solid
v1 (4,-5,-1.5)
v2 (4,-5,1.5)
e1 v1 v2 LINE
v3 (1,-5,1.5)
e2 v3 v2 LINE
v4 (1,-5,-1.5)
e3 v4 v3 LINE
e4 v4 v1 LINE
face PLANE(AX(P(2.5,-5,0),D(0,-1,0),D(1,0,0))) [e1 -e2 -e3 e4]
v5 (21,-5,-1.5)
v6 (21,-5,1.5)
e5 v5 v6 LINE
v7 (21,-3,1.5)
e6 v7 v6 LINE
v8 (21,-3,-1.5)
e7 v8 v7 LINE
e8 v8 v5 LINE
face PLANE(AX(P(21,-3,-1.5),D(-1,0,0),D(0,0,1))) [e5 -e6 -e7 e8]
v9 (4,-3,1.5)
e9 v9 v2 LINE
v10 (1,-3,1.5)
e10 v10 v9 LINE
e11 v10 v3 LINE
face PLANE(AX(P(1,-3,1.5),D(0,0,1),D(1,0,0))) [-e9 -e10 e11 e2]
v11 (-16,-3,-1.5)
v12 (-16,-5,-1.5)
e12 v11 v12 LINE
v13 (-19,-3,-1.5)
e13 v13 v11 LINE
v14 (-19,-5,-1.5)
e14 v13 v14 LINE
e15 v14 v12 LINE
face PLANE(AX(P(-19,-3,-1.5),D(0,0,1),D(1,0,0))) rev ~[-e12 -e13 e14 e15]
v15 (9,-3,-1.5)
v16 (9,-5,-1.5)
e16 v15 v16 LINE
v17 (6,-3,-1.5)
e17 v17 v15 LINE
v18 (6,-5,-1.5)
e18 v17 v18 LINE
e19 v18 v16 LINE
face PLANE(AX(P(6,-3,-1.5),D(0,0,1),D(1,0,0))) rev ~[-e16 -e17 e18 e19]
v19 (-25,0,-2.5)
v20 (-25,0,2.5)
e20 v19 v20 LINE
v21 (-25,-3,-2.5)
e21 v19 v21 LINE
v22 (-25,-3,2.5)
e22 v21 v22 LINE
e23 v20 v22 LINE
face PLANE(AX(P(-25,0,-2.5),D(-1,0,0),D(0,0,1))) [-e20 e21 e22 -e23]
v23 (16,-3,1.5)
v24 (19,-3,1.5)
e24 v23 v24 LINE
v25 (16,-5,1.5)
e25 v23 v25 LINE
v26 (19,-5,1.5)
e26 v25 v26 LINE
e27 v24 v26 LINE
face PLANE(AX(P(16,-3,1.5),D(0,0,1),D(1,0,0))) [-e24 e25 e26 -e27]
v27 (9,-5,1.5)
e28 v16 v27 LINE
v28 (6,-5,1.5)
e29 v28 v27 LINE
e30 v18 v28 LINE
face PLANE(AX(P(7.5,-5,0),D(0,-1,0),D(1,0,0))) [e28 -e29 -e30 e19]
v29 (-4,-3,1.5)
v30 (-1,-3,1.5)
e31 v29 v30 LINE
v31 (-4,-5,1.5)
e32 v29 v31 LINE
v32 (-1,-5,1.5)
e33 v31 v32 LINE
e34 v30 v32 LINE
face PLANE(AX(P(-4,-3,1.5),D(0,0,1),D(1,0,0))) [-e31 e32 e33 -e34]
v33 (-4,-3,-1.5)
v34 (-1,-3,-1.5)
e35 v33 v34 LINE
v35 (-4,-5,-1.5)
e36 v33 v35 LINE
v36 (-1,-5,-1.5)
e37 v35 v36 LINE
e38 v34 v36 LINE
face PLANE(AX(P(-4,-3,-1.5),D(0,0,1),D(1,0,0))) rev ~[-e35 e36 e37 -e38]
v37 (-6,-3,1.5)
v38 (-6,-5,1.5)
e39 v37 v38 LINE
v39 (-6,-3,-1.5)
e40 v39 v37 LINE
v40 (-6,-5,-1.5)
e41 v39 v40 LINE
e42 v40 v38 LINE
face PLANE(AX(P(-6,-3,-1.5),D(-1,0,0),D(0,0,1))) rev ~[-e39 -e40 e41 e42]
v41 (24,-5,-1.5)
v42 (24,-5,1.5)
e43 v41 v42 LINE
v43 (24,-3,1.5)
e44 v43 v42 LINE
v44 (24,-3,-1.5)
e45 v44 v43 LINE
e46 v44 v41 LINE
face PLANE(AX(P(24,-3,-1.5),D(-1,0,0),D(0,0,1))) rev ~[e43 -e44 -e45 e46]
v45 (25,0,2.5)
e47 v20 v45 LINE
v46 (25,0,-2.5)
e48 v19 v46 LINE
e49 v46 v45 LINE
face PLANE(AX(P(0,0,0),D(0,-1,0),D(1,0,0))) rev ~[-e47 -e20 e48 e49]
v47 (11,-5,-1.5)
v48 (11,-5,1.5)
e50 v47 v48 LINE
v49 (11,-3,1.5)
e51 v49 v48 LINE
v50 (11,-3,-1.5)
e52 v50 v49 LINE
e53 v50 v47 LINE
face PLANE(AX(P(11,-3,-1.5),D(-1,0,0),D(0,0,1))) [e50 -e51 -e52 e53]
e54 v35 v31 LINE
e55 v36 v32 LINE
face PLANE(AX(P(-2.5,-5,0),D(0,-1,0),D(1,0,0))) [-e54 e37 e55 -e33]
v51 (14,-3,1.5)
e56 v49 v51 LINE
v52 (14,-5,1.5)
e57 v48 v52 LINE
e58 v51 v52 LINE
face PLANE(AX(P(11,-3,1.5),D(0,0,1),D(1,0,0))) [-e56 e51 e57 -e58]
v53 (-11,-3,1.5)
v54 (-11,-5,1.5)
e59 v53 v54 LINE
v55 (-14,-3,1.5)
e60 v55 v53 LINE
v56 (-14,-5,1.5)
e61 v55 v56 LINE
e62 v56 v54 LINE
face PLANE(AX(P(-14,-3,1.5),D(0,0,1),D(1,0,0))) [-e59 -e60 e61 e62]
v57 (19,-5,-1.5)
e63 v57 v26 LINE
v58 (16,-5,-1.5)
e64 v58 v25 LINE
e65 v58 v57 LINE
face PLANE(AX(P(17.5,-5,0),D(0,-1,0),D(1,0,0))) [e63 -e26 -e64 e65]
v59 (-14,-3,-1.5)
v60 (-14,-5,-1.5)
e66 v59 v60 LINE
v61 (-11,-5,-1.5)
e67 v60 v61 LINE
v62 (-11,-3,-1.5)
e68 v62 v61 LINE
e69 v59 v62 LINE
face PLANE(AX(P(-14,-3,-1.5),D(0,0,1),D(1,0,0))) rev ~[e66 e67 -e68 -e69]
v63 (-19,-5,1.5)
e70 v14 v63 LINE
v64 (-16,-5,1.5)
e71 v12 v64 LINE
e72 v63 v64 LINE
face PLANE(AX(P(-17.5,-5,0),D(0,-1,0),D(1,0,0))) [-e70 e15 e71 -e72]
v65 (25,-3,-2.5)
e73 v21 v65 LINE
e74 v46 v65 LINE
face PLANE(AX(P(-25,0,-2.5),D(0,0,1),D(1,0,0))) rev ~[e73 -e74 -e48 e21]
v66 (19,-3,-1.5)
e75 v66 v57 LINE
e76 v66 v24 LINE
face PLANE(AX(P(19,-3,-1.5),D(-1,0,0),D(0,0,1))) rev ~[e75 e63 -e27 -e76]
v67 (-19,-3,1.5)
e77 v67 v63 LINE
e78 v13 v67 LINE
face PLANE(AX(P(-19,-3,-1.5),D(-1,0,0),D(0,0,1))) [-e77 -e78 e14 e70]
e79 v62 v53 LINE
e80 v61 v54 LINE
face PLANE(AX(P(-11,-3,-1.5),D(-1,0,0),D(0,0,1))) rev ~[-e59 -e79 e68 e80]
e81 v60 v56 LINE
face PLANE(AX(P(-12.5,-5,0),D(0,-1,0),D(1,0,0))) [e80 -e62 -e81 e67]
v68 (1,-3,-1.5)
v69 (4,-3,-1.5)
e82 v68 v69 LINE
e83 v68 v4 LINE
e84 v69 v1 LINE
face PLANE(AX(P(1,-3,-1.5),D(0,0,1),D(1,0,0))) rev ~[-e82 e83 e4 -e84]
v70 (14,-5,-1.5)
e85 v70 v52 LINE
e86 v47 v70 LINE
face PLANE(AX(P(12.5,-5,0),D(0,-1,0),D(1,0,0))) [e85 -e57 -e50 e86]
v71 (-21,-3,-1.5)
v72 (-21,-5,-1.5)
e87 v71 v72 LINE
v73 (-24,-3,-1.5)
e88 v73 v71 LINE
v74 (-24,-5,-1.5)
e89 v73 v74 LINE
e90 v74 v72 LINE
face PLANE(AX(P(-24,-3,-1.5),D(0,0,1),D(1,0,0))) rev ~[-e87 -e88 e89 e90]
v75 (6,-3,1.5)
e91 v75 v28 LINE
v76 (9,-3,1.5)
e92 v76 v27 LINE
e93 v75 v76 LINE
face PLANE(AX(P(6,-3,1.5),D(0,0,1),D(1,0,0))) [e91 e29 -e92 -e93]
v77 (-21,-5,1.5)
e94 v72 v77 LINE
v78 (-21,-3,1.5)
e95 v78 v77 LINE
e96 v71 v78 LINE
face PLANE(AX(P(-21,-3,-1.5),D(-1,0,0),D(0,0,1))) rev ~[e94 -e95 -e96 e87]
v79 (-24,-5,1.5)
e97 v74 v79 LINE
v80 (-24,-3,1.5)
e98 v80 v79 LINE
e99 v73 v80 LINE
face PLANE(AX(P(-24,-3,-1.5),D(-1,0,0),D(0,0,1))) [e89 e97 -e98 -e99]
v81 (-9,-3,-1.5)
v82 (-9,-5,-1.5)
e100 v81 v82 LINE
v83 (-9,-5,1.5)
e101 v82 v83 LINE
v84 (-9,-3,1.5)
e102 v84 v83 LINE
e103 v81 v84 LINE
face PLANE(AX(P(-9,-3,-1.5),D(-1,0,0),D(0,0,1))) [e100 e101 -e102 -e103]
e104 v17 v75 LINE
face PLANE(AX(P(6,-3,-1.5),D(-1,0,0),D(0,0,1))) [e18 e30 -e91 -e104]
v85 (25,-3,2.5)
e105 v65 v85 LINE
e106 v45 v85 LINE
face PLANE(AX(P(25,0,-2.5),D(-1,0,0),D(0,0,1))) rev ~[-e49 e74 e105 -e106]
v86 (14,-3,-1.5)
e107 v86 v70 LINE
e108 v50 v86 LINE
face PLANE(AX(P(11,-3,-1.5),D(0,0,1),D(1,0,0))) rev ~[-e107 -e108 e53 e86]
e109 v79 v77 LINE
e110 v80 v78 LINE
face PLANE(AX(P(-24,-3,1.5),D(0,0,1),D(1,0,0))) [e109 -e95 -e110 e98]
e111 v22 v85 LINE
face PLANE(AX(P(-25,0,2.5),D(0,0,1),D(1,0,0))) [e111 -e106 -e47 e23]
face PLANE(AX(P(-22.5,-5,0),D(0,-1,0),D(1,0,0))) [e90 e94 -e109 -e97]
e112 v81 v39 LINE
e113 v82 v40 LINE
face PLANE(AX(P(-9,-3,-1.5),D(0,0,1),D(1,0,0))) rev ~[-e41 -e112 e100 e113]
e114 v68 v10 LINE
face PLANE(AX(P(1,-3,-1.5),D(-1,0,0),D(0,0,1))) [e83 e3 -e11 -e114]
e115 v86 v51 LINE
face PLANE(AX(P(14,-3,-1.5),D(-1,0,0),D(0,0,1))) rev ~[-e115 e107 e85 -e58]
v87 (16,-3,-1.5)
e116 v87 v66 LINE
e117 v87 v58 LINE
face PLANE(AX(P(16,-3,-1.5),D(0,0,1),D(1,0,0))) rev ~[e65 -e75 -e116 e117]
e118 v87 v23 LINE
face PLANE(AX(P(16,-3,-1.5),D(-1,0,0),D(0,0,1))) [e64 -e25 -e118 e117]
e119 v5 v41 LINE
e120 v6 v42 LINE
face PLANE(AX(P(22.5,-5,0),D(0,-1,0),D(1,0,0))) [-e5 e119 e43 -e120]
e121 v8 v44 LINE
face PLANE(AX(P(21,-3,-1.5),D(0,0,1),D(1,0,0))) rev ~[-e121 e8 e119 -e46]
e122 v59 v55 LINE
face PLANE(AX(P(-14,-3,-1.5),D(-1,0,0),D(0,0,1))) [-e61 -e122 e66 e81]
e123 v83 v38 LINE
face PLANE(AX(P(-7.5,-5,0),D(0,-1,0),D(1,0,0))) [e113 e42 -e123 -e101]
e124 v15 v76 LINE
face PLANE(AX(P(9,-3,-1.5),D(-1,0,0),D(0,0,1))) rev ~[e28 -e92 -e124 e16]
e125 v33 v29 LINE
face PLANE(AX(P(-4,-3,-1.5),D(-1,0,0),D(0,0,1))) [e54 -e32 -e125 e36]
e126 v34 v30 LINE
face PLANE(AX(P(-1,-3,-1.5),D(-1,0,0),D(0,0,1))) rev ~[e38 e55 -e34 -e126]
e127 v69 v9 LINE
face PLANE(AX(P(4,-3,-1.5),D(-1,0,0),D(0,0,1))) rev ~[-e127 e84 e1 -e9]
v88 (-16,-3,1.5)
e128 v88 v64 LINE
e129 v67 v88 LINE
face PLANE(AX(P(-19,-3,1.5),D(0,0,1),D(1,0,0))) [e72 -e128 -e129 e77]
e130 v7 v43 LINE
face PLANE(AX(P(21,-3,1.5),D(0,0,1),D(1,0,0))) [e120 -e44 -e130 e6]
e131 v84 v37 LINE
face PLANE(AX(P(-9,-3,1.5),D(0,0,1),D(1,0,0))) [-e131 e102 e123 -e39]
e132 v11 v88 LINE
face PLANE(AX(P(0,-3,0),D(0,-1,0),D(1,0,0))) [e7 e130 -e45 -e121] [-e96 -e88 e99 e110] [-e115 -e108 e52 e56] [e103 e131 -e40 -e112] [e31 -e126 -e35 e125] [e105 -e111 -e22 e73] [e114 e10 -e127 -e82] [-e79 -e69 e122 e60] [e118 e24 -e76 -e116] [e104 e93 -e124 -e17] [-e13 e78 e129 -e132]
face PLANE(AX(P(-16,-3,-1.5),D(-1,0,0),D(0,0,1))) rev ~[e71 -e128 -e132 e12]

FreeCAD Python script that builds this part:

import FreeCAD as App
import Part
import Sketcher

V = App.Vector

doc = App.newDocument("Part")
body = doc.addObject("PartDesign::Body", "Body")

sketch1 = doc.addObject("Sketcher::SketchObject", "Sketch")
body.addObject(sketch1)
sketch1.AttachmentSupport = (doc.XZ_Plane, [""])
sketch1.MapMode = "FlatFace"
sketch1.addGeometry(Part.LineSegment(V(-25, 2.5, 0), V(-25, -2.5, 0)), False)
sketch1.addGeometry(Part.LineSegment(V(-25, -2.5, 0), V(25, -2.5, 0)), False)
sketch1.addGeometry(Part.LineSegment(V(25, -2.5, 0), V(25, 2.5, 0)), False)
sketch1.addGeometry(Part.LineSegment(V(25, 2.5, 0), V(-25, 2.5, 0)), False)
sketch1.addConstraint(Sketcher.Constraint("Coincident", 0, 2, 1, 1))
sketch1.addConstraint(Sketcher.Constraint("Coincident", 1, 2, 2, 1))
sketch1.addConstraint(Sketcher.Constraint("Coincident", 2, 2, 3, 1))
sketch1.addConstraint(Sketcher.Constraint("Coincident", 3, 2, 0, 1))
sketch1.addConstraint(Sketcher.Constraint("Vertical", 0))
sketch1.addConstraint(Sketcher.Constraint("Horizontal", 1))
sketch1.addConstraint(Sketcher.Constraint("Vertical", 2))
sketch1.addConstraint(Sketcher.Constraint("Horizontal", 3))
sketch1.addConstraint(Sketcher.Constraint("Symmetric", 0, 2, 2, 2, -1, 1))
sketch1.addConstraint(Sketcher.Constraint("DistanceX", 1, 1, 1, 2, 50.0))
sketch1.addConstraint(Sketcher.Constraint("DistanceY", 0, 2, 0, 1, 5.0))
pad1 = doc.addObject("PartDesign::Pad", "Pad")
body.addObject(pad1)
pad1.Profile = sketch1
pad1.Length = 3

sketch2 = doc.addObject("Sketcher::SketchObject", "Sketch001")
body.addObject(sketch2)
sketch2.AttachmentSupport = (doc.XZ_Plane, [""])
sketch2.MapMode = "FlatFace"
sketch2.AttachmentOffset = App.Placement(V(0, 0, 3), App.Rotation())
sketch2.addGeometry(Part.LineSegment(V(-24, 1.5, 0), V(-24, -1.5, 0)), False)
sketch2.addGeometry(Part.LineSegment(V(-24, -1.5, 0), V(-21, -1.5, 0)), False)
sketch2.addGeometry(Part.LineSegment(V(-21, -1.5, 0), V(-21, 1.5, 0)), False)
sketch2.addGeometry(Part.LineSegment(V(-21, 1.5, 0), V(-24, 1.5, 0)), False)
sketch2.addGeometry(Part.LineSegment(V(-19, 1.5, 0), V(-19, -1.5, 0)), False)
sketch2.addGeometry(Part.LineSegment(V(-19, -1.5, 0), V(-16, -1.5, 0)), False)
sketch2.addGeometry(Part.LineSegment(V(-16, -1.5, 0), V(-16, 1.5, 0)), False)
sketch2.addGeometry(Part.LineSegment(V(-16, 1.5, 0), V(-19, 1.5, 0)), False)
sketch2.addGeometry(Part.LineSegment(V(-14, 1.5, 0), V(-14, -1.5, 0)), False)
sketch2.addGeometry(Part.LineSegment(V(-14, -1.5, 0), V(-11, -1.5, 0)), False)
sketch2.addGeometry(Part.LineSegment(V(-11, -1.5, 0), V(-11, 1.5, 0)), False)
sketch2.addGeometry(Part.LineSegment(V(-11, 1.5, 0), V(-14, 1.5, 0)), False)
sketch2.addGeometry(Part.LineSegment(V(-9, 1.5, 0), V(-9, -1.5, 0)), False)
sketch2.addGeometry(Part.LineSegment(V(-9, -1.5, 0), V(-6, -1.5, 0)), False)
sketch2.addGeometry(Part.LineSegment(V(-6, -1.5, 0), V(-6, 1.5, 0)), False)
sketch2.addGeometry(Part.LineSegment(V(-6, 1.5, 0), V(-9, 1.5, 0)), False)
sketch2.addGeometry(Part.LineSegment(V(-4, 1.5, 0), V(-4, -1.5, 0)), False)
sketch2.addGeometry(Part.LineSegment(V(-4, -1.5, 0), V(-1, -1.5, 0)), False)
sketch2.addGeometry(Part.LineSegment(V(-1, -1.5, 0), V(-1, 1.5, 0)), False)
sketch2.addGeometry(Part.LineSegment(V(-1, 1.5, 0), V(-4, 1.5, 0)), False)
sketch2.addGeometry(Part.LineSegment(V(1, 1.5, 0), V(1, -1.5, 0)), False)
sketch2.addGeometry(Part.LineSegment(V(1, -1.5, 0), V(4, -1.5, 0)), False)
sketch2.addGeometry(Part.LineSegment(V(4, -1.5, 0), V(4, 1.5, 0)), False)
sketch2.addGeometry(Part.LineSegment(V(4, 1.5, 0), V(1, 1.5, 0)), False)
sketch2.addGeometry(Part.LineSegment(V(6, 1.5, 0), V(6, -1.5, 0)), False)
sketch2.addGeometry(Part.LineSegment(V(6, -1.5, 0), V(9, -1.5, 0)), False)
sketch2.addGeometry(Part.LineSegment(V(9, -1.5, 0), V(9, 1.5, 0)), False)
sketch2.addGeometry(Part.LineSegment(V(9, 1.5, 0), V(6, 1.5, 0)), False)
sketch2.addGeometry(Part.LineSegment(V(11, 1.5, 0), V(11, -1.5, 0)), False)
sketch2.addGeometry(Part.LineSegment(V(11, -1.5, 0), V(14, -1.5, 0)), False)
sketch2.addGeometry(Part.LineSegment(V(14, -1.5, 0), V(14, 1.5, 0)), False)
sketch2.addGeometry(Part.LineSegment(V(14, 1.5, 0), V(11, 1.5, 0)), False)
sketch2.addGeometry(Part.LineSegment(V(16, 1.5, 0), V(16, -1.5, 0)), False)
sketch2.addGeometry(Part.LineSegment(V(16, -1.5, 0), V(19, -1.5, 0)), False)
sketch2.addGeometry(Part.LineSegment(V(19, -1.5, 0), V(19, 1.5, 0)), False)
sketch2.addGeometry(Part.LineSegment(V(19, 1.5, 0), V(16, 1.5, 0)), False)
sketch2.addGeometry(Part.LineSegment(V(21, 1.5, 0), V(21, -1.5, 0)), False)
sketch2.addGeometry(Part.LineSegment(V(21, -1.5, 0), V(24, -1.5, 0)), False)
sketch2.addGeometry(Part.LineSegment(V(24, -1.5, 0), V(24, 1.5, 0)), False)
sketch2.addGeometry(Part.LineSegment(V(24, 1.5, 0), V(21, 1.5, 0)), False)
sketch2.addConstraint(Sketcher.Constraint("Coincident", 0, 2, 1, 1))
sketch2.addConstraint(Sketcher.Constraint("Coincident", 1, 2, 2, 1))
sketch2.addConstraint(Sketcher.Constraint("Coincident", 2, 2, 3, 1))
sketch2.addConstraint(Sketcher.Constraint("Coincident", 3, 2, 0, 1))
sketch2.addConstraint(Sketcher.Constraint("Coincident", 4, 2, 5, 1))
sketch2.addConstraint(Sketcher.Constraint("Coincident", 5, 2, 6, 1))
sketch2.addConstraint(Sketcher.Constraint("Coincident", 6, 2, 7, 1))
sketch2.addConstraint(Sketcher.Constraint("Coincident", 7, 2, 4, 1))
sketch2.addConstraint(Sketcher.Constraint("Coincident", 8, 2, 9, 1))
sketch2.addConstraint(Sketcher.Constraint("Coincident", 9, 2, 10, 1))
sketch2.addConstraint(Sketcher.Constraint("Coincident", 10, 2, 11, 1))
sketch2.addConstraint(Sketcher.Constraint("Coincident", 11, 2, 8, 1))
sketch2.addConstraint(Sketcher.Constraint("Coincident", 12, 2, 13, 1))
sketch2.addConstraint(Sketcher.Constraint("Coincident", 13, 2, 14, 1))
sketch2.addConstraint(Sketcher.Constraint("Coincident", 14, 2, 15, 1))
sketch2.addConstraint(Sketcher.Constraint("Coincident", 15, 2, 12, 1))
sketch2.addConstraint(Sketcher.Constraint("Coincident", 16, 2, 17, 1))
sketch2.addConstraint(Sketcher.Constraint("Coincident", 17, 2, 18, 1))
sketch2.addConstraint(Sketcher.Constraint("Coincident", 18, 2, 19, 1))
sketch2.addConstraint(Sketcher.Constraint("Coincident", 19, 2, 16, 1))
sketch2.addConstraint(Sketcher.Constraint("Coincident", 20, 2, 21, 1))
sketch2.addConstraint(Sketcher.Constraint("Coincident", 21, 2, 22, 1))
sketch2.addConstraint(Sketcher.Constraint("Coincident", 22, 2, 23, 1))
sketch2.addConstraint(Sketcher.Constraint("Coincident", 23, 2, 20, 1))
sketch2.addConstraint(Sketcher.Constraint("Coincident", 24, 2, 25, 1))
sketch2.addConstraint(Sketcher.Constraint("Coincident", 25, 2, 26, 1))
sketch2.addConstraint(Sketcher.Constraint("Coincident", 26, 2, 27, 1))
sketch2.addConstraint(Sketcher.Constraint("Coincident", 27, 2, 24, 1))
sketch2.addConstraint(Sketcher.Constraint("Coincident", 28, 2, 29, 1))
sketch2.addConstraint(Sketcher.Constraint("Coincident", 29, 2, 30, 1))
sketch2.addConstraint(Sketcher.Constraint("Coincident", 30, 2, 31, 1))
sketch2.addConstraint(Sketcher.Constraint("Coincident", 31, 2, 28, 1))
sketch2.addConstraint(Sketcher.Constraint("Coincident", 32, 2, 33, 1))
sketch2.addConstraint(Sketcher.Constraint("Coincident", 33, 2, 34, 1))
sketch2.addConstraint(Sketcher.Constraint("Coincident", 34, 2, 35, 1))
sketch2.addConstraint(Sketcher.Constraint("Coincident", 35, 2, 32, 1))
sketch2.addConstraint(Sketcher.Constraint("Coincident", 36, 2, 37, 1))
sketch2.addConstraint(Sketcher.Constraint("Coincident", 37, 2, 38, 1))
sketch2.addConstraint(Sketcher.Constraint("Coincident", 38, 2, 39, 1))
sketch2.addConstraint(Sketcher.Constraint("Coincident", 39, 2, 36, 1))
sketch2.addConstraint(Sketcher.Constraint("Vertical", 0))
sketch2.addConstraint(Sketcher.Constraint("Horizontal", 1))
sketch2.addConstraint(Sketcher.Constraint("Vertical", 2))
sketch2.addConstraint(Sketcher.Constraint("Horizontal", 3))
sketch2.addConstraint(Sketcher.Constraint("Vertical", 4))
sketch2.addConstraint(Sketcher.Constraint("Horizontal", 5))
sketch2.addConstraint(Sketcher.Constraint("Vertical", 6))
sketch2.addConstraint(Sketcher.Constraint("Horizontal", 7))
sketch2.addConstraint(Sketcher.Constraint("Vertical", 8))
sketch2.addConstraint(Sketcher.Constraint("Horizontal", 9))
sketch2.addConstraint(Sketcher.Constraint("Vertical", 10))
sketch2.addConstraint(Sketcher.Constraint("Horizontal", 11))
sketch2.addConstraint(Sketcher.Constraint("Vertical", 12))
sketch2.addConstraint(Sketcher.Constraint("Horizontal", 13))
sketch2.addConstraint(Sketcher.Constraint("Vertical", 14))
sketch2.addConstraint(Sketcher.Constraint("Horizontal", 15))
sketch2.addConstraint(Sketcher.Constraint("Vertical", 16))
sketch2.addConstraint(Sketcher.Constraint("Horizontal", 17))
sketch2.addConstraint(Sketcher.Constraint("Vertical", 18))
sketch2.addConstraint(Sketcher.Constraint("Horizontal", 19))
sketch2.addConstraint(Sketcher.Constraint("Vertical", 20))
sketch2.addConstraint(Sketcher.Constraint("Horizontal", 21))
sketch2.addConstraint(Sketcher.Constraint("Vertical", 22))
sketch2.addConstraint(Sketcher.Constraint("Horizontal", 23))
sketch2.addConstraint(Sketcher.Constraint("Vertical", 24))
sketch2.addConstraint(Sketcher.Constraint("Horizontal", 25))
sketch2.addConstraint(Sketcher.Constraint("Vertical", 26))
sketch2.addConstraint(Sketcher.Constraint("Horizontal", 27))
sketch2.addConstraint(Sketcher.Constraint("Vertical", 28))
sketch2.addConstraint(Sketcher.Constraint("Horizontal", 29))
sketch2.addConstraint(Sketcher.Constraint("Vertical", 30))
sketch2.addConstraint(Sketcher.Constraint("Horizontal", 31))
sketch2.addConstraint(Sketcher.Constraint("Vertical", 32))
sketch2.addConstraint(Sketcher.Constraint("Horizontal", 33))
sketch2.addConstraint(Sketcher.Constraint("Vertical", 34))
sketch2.addConstraint(Sketcher.Constraint("Horizontal", 35))
sketch2.addConstraint(Sketcher.Constraint("Vertical", 36))
sketch2.addConstraint(Sketcher.Constraint("Horizontal", 37))
sketch2.addConstraint(Sketcher.Constraint("Vertical", 38))
sketch2.addConstraint(Sketcher.Constraint("Horizontal", 39))
sketch2.addConstraint(Sketcher.Constraint("Symmetric", 18, 2, 20, 2, -1, 1))
sketch2.addConstraint(Sketcher.Constraint("Symmetric", 16, 2, 22, 2, -1, 1))
sketch2.addConstraint(Sketcher.Constraint("Symmetric", 14, 2, 24, 2, -1, 1))
sketch2.addConstraint(Sketcher.Constraint("Symmetric", 12, 2, 26, 2, -1, 1))
sketch2.addConstraint(Sketcher.Constraint("Symmetric", 10, 2, 28, 2, -1, 1))
sketch2.addConstraint(Sketcher.Constraint("Symmetric", 8, 2, 30, 2, -1, 1))
sketch2.addConstraint(Sketcher.Constraint("Symmetric", 6, 2, 32, 2, -1, 1))
sketch2.addConstraint(Sketcher.Constraint("Symmetric", 4, 2, 34, 2, -1, 1))
sketch2.addConstraint(Sketcher.Constraint("Symmetric", 2, 2, 36, 2, -1, 1))
sketch2.addConstraint(Sketcher.Constraint("Symmetric", 0, 2, 38, 2, -1, 1))
sketch2.addConstraint(Sketcher.Constraint("Horizontal", 1, 2, 4, 2))
sketch2.addConstraint(Sketcher.Constraint("Horizontal", 3, 2, 6, 2))
sketch2.addConstraint(Sketcher.Constraint("Horizontal", 5, 2, 8, 2))
sketch2.addConstraint(Sketcher.Constraint("Horizontal", 7, 2, 10, 2))
sketch2.addConstraint(Sketcher.Constraint("Horizontal", 9, 2, 12, 2))
sketch2.addConstraint(Sketcher.Constraint("Horizontal", 11, 2, 14, 2))
sketch2.addConstraint(Sketcher.Constraint("Horizontal", 13, 2, 16, 2))
sketch2.addConstraint(Sketcher.Constraint("Horizontal", 15, 2, 18, 2))
sketch2.addConstraint(Sketcher.Constraint("Horizontal", 17, 2, 20, 2))
sketch2.addConstraint(Sketcher.Constraint("Equal", 3, 5))
sketch2.addConstraint(Sketcher.Constraint("Equal", 7, 9))
sketch2.addConstraint(Sketcher.Constraint("Equal", 11, 13))
sketch2.addConstraint(Sketcher.Constraint("Equal", 15, 17))
sketch2.addConstraint(Sketcher.Constraint("Equal", 39, 0))
sketch2.addConstraint(Sketcher.Constraint("DistanceX", 1, 1, 1, 2, 3.0))
sketch2.addConstraint(Sketcher.Constraint("DistanceX", 0, 2, -1, 1, 24.0))
sketch2.addConstraint(Sketcher.Constraint("DistanceX", 4, 2, -1, 1, 19.0))
sketch2.addConstraint(Sketcher.Constraint("DistanceX", 8, 2, -1, 1, 14.0))
sketch2.addConstraint(Sketcher.Constraint("DistanceX", 12, 2, -1, 1, 9.0))
sketch2.addConstraint(Sketcher.Constraint("DistanceX", 16, 2, -1, 1, 4.0))
pad2 = doc.addObject("PartDesign::Pad", "Pad001")
body.addObject(pad2)
pad2.Profile = sketch2
pad2.Length = 2

doc.recompute()
